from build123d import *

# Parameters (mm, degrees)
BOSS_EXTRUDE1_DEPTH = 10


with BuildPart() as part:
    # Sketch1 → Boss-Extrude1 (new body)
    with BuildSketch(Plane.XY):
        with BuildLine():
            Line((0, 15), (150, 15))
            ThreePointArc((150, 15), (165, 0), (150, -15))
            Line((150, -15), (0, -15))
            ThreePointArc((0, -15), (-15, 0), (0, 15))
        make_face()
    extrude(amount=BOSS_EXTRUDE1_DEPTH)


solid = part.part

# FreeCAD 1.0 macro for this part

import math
import FreeCAD as App
import Part
import Sketcher
Q = App.Units.Quantity

doc = App.newDocument("Part")
body = doc.addObject("PartDesign::Body", "Body")

sketch1 = body.newObject("Sketcher::SketchObject", "Sketch")
sketch1.AttachmentSupport = (doc.getObject("XY_Plane"), [""])
sketch1.MapMode = "FlatFace"
sketch1.addGeometry(Part.LineSegment(App.Vector(150, 15, 0), App.Vector(0, 15, 0)), False)
sketch1.addGeometry(Part.ArcOfCircle(Part.Circle(App.Vector(0, 0, 0), App.Vector(0, 0, 1), 15), math.radians(90), math.radians(270)), False)
sketch1.addGeometry(Part.LineSegment(App.Vector(0, -15, 0), App.Vector(150, -15, 0)), False)
sketch1.addGeometry(Part.ArcOfCircle(Part.Circle(App.Vector(150, 0, 0), App.Vector(0, 0, 1), 15), math.radians(-90), math.radians(90)), False)
sketch1.addConstraint(Sketcher.Constraint("Tangent", 0, 2, 1, 1))
sketch1.addConstraint(Sketcher.Constraint("Tangent", 1, 2, 2, 1))
sketch1.addConstraint(Sketcher.Constraint("Tangent", 2, 2, 3, 1))
sketch1.addConstraint(Sketcher.Constraint("Tangent", 3, 2, 0, 1))
sketch1.addConstraint(Sketcher.Constraint("Horizontal", 0))
sketch1.addConstraint(Sketcher.Constraint("Horizontal", 2))
sketch1.addConstraint(Sketcher.Constraint("Coincident", 1, 3, -1, 1))
sketch1.addConstraint(Sketcher.Constraint("Radius", 1, Q("15 mm")))
sketch1.addConstraint(Sketcher.Constraint("DistanceX", 0, 2, 0, 1, Q("150 mm")))
pad1 = body.newObject("PartDesign::Pad", "Pad")
pad1.Profile = sketch1
pad1.Length = 10

doc.recompute()
